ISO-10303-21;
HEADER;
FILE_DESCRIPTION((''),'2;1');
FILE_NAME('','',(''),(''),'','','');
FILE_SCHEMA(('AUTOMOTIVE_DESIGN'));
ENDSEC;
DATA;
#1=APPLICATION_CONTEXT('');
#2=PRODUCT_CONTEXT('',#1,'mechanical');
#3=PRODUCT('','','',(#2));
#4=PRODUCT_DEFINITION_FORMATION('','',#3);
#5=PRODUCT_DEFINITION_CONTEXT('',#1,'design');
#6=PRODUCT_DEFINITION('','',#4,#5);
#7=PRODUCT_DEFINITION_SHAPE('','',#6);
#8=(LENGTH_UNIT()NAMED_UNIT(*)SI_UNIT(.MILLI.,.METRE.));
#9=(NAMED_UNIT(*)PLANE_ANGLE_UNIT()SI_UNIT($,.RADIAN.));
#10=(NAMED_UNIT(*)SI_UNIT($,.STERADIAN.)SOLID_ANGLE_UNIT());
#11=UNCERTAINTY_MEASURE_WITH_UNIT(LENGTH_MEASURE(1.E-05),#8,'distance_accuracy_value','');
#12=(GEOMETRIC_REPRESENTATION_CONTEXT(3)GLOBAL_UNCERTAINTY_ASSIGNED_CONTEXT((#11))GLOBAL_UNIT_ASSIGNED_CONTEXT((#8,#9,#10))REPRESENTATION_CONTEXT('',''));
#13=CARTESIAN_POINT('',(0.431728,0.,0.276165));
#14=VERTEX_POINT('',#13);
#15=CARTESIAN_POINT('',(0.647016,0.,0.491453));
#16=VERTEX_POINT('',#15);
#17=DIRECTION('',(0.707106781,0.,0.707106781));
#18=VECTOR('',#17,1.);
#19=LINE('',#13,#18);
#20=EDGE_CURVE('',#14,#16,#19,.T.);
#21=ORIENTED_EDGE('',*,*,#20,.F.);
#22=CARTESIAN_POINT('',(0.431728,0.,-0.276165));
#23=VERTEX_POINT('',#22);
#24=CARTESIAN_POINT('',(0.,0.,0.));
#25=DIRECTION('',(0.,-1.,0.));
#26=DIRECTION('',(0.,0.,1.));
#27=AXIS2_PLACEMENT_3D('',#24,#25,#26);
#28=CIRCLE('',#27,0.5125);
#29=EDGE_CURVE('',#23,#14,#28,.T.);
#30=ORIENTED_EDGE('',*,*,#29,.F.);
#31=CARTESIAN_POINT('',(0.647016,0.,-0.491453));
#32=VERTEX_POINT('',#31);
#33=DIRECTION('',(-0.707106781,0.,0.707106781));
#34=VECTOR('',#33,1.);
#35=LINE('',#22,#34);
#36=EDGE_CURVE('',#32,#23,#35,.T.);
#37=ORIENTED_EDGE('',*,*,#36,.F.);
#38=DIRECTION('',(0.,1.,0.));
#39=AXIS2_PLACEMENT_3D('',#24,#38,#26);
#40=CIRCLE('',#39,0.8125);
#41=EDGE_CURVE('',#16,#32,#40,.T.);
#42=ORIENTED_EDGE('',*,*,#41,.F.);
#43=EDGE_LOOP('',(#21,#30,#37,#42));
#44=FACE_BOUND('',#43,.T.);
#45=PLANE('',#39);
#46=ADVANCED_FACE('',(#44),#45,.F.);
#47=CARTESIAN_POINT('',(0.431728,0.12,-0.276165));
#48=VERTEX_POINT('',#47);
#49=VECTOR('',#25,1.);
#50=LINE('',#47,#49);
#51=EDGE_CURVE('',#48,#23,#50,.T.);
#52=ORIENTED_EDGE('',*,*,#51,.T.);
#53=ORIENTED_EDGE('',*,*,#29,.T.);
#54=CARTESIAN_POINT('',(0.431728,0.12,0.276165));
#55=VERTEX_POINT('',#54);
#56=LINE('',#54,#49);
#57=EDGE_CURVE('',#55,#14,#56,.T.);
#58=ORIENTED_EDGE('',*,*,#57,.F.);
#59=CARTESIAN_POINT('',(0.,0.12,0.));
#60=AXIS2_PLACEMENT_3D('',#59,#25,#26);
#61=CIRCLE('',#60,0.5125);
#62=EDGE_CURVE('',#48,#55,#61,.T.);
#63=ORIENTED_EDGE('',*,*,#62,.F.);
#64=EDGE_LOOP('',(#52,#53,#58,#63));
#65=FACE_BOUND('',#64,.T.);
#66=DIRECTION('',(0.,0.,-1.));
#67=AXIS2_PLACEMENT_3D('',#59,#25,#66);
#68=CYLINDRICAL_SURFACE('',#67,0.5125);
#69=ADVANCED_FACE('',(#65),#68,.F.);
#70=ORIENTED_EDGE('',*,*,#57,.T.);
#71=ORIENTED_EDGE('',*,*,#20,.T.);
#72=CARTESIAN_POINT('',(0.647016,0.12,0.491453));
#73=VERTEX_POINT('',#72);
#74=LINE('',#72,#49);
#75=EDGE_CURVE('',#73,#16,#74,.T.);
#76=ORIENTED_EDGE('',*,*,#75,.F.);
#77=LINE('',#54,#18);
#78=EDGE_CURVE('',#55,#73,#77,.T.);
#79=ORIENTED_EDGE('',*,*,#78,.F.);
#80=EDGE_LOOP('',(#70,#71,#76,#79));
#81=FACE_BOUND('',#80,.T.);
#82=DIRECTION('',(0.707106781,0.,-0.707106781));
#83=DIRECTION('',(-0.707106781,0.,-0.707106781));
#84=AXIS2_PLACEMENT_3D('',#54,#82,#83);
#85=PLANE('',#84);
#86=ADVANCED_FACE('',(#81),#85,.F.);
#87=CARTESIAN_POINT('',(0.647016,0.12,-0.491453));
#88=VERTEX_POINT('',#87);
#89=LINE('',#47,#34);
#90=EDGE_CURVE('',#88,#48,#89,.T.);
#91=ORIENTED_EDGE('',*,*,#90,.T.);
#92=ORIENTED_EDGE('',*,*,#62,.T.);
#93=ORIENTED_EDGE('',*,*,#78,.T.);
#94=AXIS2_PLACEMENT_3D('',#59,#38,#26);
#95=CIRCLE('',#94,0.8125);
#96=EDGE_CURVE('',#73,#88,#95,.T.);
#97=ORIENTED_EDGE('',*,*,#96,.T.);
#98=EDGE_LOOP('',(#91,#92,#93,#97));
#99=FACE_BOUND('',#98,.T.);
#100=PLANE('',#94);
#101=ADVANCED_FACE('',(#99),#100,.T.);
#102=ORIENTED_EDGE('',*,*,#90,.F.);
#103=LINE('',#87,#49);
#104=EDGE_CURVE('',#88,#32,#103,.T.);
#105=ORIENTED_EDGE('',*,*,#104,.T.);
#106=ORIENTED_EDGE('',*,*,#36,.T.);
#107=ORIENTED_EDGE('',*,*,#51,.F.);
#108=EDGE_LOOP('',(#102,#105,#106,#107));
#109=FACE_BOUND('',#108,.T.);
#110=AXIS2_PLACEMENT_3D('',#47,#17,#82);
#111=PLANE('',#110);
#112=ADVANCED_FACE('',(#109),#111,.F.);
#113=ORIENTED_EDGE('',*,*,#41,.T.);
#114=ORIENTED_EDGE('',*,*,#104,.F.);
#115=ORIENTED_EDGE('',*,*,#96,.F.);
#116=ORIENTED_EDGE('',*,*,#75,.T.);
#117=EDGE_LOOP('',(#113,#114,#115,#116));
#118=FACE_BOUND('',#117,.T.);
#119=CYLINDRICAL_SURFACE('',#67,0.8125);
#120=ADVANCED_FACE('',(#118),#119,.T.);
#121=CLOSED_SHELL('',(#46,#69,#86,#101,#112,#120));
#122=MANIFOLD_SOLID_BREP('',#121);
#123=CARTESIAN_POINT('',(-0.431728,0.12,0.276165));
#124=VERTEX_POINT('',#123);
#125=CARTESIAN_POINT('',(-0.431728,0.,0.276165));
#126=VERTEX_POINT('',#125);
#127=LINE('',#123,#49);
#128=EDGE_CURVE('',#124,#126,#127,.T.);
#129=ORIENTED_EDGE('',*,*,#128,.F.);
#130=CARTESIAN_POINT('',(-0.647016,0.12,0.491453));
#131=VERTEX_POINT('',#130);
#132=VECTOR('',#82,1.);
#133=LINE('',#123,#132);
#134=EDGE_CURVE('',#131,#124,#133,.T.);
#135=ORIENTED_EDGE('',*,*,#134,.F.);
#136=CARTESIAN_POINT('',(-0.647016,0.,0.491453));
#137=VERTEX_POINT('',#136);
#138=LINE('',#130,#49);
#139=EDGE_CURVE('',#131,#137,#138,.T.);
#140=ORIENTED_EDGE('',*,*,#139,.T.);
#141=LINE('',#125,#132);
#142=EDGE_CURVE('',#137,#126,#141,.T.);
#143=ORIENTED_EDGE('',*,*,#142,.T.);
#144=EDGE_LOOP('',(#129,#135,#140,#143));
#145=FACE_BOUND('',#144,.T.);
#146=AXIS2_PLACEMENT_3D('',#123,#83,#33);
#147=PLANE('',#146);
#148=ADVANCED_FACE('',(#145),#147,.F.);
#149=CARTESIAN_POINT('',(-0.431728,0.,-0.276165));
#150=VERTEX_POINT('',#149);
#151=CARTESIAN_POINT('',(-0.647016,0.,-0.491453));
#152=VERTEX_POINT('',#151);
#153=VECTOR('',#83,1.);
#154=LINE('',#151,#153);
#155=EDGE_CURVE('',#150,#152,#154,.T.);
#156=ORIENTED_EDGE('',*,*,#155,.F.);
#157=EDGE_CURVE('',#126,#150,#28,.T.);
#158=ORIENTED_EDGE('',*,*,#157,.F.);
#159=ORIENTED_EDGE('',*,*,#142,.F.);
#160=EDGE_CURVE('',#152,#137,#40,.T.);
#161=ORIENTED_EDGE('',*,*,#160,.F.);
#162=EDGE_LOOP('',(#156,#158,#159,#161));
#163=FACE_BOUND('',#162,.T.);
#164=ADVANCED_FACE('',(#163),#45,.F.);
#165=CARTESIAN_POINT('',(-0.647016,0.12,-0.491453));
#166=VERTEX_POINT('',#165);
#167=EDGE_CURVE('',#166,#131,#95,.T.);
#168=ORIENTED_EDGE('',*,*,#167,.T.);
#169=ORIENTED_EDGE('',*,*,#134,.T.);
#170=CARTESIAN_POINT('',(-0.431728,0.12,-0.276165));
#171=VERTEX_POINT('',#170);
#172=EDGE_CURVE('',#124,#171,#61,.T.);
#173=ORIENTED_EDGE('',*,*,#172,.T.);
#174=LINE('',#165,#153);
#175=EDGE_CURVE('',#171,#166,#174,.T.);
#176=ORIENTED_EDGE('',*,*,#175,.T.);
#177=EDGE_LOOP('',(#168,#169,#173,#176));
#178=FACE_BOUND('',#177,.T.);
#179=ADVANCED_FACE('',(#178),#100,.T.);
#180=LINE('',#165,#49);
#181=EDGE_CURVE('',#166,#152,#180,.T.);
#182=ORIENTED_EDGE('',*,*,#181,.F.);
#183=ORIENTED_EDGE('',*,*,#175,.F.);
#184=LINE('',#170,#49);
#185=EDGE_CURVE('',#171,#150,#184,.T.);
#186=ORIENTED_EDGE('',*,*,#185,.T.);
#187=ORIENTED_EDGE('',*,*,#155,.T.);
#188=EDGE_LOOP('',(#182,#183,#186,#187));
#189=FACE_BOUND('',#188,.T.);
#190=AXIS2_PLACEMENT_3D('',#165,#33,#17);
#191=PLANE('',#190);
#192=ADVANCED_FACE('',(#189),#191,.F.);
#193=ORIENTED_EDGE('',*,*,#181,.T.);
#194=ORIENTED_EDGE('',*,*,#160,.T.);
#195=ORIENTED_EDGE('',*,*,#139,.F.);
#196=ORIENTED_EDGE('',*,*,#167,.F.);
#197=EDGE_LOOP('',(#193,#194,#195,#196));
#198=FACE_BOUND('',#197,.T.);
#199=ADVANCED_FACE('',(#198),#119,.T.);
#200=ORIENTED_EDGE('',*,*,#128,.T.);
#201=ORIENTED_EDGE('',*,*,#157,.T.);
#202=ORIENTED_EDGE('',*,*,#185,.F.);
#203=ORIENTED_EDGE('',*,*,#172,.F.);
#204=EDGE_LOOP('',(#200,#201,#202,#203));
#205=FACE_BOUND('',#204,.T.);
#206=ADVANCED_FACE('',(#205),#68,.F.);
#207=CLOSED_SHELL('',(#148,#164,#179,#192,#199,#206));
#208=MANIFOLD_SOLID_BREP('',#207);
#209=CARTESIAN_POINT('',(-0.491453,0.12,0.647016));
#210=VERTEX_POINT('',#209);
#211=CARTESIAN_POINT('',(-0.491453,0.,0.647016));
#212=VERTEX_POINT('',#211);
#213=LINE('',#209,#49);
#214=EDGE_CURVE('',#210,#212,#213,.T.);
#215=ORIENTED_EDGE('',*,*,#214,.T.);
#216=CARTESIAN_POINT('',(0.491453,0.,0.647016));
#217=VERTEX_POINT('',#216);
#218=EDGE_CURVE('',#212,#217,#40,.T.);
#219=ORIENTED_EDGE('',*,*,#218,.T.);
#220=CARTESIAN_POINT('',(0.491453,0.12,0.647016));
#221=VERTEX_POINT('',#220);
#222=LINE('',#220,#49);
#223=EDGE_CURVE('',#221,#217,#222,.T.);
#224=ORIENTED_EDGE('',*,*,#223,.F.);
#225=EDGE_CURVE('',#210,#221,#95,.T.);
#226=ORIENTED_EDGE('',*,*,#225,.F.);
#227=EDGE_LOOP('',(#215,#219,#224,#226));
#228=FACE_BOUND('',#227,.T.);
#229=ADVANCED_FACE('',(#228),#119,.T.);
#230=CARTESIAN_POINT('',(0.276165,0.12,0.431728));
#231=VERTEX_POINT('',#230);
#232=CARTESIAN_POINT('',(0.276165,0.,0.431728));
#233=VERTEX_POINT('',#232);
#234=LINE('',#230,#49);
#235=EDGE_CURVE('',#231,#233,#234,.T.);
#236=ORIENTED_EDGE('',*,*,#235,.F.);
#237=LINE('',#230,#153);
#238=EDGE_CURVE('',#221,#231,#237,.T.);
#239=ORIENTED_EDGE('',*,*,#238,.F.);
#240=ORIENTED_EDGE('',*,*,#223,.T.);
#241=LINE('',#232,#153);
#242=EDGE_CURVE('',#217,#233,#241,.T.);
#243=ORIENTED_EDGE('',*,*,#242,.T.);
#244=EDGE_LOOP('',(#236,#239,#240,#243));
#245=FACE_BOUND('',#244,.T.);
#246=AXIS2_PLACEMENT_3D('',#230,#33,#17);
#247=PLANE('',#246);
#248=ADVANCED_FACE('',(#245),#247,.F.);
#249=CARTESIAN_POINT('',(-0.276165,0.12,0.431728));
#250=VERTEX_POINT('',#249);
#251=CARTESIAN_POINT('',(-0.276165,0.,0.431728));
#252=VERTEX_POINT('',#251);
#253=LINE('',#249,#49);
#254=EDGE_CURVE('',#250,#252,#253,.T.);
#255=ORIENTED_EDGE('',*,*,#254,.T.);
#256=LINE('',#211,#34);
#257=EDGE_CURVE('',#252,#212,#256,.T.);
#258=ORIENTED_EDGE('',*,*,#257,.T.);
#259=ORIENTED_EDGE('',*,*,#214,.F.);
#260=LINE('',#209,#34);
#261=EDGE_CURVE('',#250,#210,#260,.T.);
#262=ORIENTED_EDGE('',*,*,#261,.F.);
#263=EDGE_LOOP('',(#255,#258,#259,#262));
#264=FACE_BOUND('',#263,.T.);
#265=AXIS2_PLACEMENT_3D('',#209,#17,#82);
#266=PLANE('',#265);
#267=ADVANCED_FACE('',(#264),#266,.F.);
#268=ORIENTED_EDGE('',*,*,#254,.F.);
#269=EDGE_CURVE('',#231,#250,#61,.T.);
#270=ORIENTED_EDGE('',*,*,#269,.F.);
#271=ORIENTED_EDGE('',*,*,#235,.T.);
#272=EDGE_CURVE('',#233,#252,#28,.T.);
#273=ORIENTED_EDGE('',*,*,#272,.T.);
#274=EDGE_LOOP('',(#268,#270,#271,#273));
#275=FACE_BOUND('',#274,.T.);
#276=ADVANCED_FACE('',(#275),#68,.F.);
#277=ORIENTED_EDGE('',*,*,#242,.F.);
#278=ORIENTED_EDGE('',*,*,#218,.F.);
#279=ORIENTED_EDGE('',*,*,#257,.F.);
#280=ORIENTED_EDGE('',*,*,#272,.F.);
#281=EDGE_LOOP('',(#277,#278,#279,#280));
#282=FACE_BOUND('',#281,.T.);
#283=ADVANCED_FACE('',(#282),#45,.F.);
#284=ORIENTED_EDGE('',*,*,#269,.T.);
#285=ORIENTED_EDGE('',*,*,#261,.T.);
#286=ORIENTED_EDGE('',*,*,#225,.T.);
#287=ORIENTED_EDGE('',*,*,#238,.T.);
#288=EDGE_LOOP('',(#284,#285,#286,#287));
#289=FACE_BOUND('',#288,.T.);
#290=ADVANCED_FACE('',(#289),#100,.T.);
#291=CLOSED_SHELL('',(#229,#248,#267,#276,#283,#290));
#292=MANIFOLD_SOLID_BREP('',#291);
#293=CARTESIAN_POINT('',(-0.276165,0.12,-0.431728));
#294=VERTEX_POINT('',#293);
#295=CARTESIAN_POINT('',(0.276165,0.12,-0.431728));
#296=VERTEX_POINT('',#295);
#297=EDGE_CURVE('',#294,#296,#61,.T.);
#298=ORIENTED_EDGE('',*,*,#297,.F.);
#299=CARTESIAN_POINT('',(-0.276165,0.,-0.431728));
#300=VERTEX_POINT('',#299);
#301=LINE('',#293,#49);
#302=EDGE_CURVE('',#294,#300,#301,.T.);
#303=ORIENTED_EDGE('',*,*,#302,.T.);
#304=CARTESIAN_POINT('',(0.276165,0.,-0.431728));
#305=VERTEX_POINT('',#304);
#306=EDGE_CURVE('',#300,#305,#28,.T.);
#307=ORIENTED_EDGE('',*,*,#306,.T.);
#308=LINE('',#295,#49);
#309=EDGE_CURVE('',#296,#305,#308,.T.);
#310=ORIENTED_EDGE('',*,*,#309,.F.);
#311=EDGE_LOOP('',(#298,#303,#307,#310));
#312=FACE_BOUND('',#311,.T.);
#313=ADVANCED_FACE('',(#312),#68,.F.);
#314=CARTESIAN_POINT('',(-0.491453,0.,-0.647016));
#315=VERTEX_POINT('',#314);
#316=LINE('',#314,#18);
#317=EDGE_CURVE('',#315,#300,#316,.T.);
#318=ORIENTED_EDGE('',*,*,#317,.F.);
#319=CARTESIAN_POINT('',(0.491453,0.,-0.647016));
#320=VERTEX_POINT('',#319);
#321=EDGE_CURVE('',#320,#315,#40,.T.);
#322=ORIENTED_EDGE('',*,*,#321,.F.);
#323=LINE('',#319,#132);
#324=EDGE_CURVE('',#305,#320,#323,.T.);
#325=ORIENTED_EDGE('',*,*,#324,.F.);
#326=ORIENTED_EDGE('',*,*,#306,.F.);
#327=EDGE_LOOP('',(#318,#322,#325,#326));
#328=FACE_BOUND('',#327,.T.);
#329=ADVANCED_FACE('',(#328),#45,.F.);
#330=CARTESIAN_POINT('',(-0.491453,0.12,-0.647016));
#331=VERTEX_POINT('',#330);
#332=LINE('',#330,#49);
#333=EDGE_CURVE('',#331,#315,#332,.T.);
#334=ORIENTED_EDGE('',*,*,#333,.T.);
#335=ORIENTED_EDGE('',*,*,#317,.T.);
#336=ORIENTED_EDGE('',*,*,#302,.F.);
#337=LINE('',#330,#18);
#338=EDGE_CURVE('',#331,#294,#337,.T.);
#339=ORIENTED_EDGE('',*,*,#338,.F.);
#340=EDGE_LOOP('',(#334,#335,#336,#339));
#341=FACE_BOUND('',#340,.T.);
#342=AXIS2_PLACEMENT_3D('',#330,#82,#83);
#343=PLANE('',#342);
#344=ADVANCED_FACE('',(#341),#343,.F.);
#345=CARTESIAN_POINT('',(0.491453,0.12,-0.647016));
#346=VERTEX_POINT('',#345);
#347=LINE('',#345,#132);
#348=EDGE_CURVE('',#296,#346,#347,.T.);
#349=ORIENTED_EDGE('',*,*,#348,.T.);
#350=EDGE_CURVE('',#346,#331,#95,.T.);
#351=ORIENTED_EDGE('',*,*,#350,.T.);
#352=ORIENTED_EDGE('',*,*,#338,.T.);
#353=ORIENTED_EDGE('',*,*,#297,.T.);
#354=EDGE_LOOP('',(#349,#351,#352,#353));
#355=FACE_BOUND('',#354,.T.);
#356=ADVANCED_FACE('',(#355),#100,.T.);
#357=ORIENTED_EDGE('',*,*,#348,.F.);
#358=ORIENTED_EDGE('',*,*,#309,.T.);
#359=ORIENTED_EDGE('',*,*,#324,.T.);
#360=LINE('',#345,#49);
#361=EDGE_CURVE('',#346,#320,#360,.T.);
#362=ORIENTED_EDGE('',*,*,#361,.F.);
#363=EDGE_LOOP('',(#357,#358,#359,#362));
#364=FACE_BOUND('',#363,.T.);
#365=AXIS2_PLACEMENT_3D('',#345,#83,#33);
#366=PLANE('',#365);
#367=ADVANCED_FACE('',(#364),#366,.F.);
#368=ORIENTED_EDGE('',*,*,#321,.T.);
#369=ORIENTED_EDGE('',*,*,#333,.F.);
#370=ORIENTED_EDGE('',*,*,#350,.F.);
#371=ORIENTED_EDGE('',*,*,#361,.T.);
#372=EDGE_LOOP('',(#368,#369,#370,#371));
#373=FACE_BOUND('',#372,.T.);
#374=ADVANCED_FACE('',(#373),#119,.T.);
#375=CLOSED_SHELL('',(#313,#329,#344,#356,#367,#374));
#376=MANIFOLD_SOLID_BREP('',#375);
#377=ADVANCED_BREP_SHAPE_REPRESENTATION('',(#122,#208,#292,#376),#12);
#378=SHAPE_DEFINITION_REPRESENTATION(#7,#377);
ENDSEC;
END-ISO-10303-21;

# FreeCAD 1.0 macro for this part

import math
import FreeCAD as App
import Part
import Sketcher
Q = App.Units.Quantity

doc = App.newDocument("Part")
body = doc.addObject("PartDesign::Body", "Body")

# Sketch on XZ plane
sketch1 = doc.addObject("Sketcher::SketchObject", "Sketch")
body.addObject(sketch1)
sketch1.AttachmentSupport = (doc.XZ_Plane, [""])
sketch1.MapMode = "FlatFace"
sketch1.addGeometry([
    Part.LineSegment(App.Vector(-0.28, 0.43, 0), App.Vector(-0.49, 0.65, 0)),
    Part.ArcOfCircle(Part.Circle(App.Vector(0, 0, 0), App.Vector(0, 0, 1), 0.81), math.radians(53), math.radians(127)),
    Part.LineSegment(App.Vector(0.49, 0.65, 0), App.Vector(0.28, 0.43, 0)),
    Part.ArcOfCircle(Part.Circle(App.Vector(0, 0, 0), App.Vector(0, 0, 1), 0.51), math.radians(57), math.radians(123)),
], False)
sketch1.addConstraint([
    Sketcher.Constraint("Coincident", 0, 2, 1, 2),
    Sketcher.Constraint("Coincident", 1, 1, 2, 1),
    Sketcher.Constraint("Coincident", 2, 2, 3, 1),
    Sketcher.Constraint("Coincident", 3, 2, 0, 1),
    Sketcher.Constraint("Coincident", 1, 3, -1, 1),
    Sketcher.Constraint("Coincident", 3, 3, -1, 1),
    Sketcher.Constraint("Perpendicular", 0, 2),
    Sketcher.Constraint("Horizontal", 0, 2, 1, 1),
    Sketcher.Constraint("Horizontal", 2, 2, 3, 2),
    Sketcher.Constraint("Radius", 1, Q("0.8125 mm")),
    Sketcher.Constraint("Radius", 3, Q("0.5125 mm")),
    Sketcher.Constraint("DistanceY", -1, 1, 2, 2, Q("0.431728 mm")),
])
pad1 = doc.addObject("PartDesign::Pad", "Pad")
body.addObject(pad1)
pad1.Profile = sketch1
pad1.Length = 0.12
pad1.Reversed = True
body2 = doc.addObject("PartDesign::Body", "Body001")

# Sketch on XZ plane
sketch2 = doc.addObject("Sketcher::SketchObject", "Sketch001")
body2.addObject(sketch2)
sketch2.AttachmentSupport = (doc.getObject("XZ_Plane001"), [""])
sketch2.MapMode = "FlatFace"
sketch2.addGeometry([
    Part.LineSegment(App.Vector(0.28, -0.43, 0), App.Vector(0.49, -0.65, 0)),
    Part.ArcOfCircle(Part.Circle(App.Vector(0, 0, 0), App.Vector(0, 0, 1), 0.81), math.radians(-127), math.radians(-53)),
    Part.LineSegment(App.Vector(-0.49, -0.65, 0), App.Vector(-0.28, -0.43, 0)),
    Part.ArcOfCircle(Part.Circle(App.Vector(0, 0, 0), App.Vector(0, 0, 1), 0.51), math.radians(-123), math.radians(-57)),
], False)
sketch2.addConstraint([
    Sketcher.Constraint("Coincident", 0, 2, 1, 2),
    Sketcher.Constraint("Coincident", 1, 1, 2, 1),
    Sketcher.Constraint("Coincident", 2, 2, 3, 1),
    Sketcher.Constraint("Coincident", 3, 2, 0, 1),
    Sketcher.Constraint("Coincident", 1, 3, -1, 1),
    Sketcher.Constraint("Coincident", 3, 3, -1, 1),
    Sketcher.Constraint("Perpendicular", 0, 2),
    Sketcher.Constraint("Horizontal", 0, 2, 1, 1),
    Sketcher.Constraint("Horizontal", 2, 2, 3, 2),
    Sketcher.Constraint("Radius", 1, Q("0.8125 mm")),
    Sketcher.Constraint("Radius", 3, Q("0.5125 mm")),
    Sketcher.Constraint("DistanceY", 2, 2, -1, 1, Q("0.431728 mm")),
])
pad2 = doc.addObject("PartDesign::Pad", "Pad001")
body2.addObject(pad2)
pad2.Profile = sketch2
pad2.Length = 0.12
pad2.Reversed = True
body3 = doc.addObject("PartDesign::Body", "Body002")

# Sketch on XZ plane
sketch3 = doc.addObject("Sketcher::SketchObject", "Sketch002")
body3.addObject(sketch3)
sketch3.AttachmentSupport = (doc.getObject("XZ_Plane002"), [""])
sketch3.MapMode = "FlatFace"
sketch3.addGeometry([
    Part.LineSegment(App.Vector(-0.43, -0.28, 0), App.Vector(-0.65, -0.49, 0)),
    Part.ArcOfCircle(Part.Circle(App.Vector(0, 0, 0), App.Vector(0, 0, 1), 0.81), math.radians(143), math.radians(217)),
    Part.LineSegment(App.Vector(-0.65, 0.49, 0), App.Vector(-0.43, 0.28, 0)),
    Part.ArcOfCircle(Part.Circle(App.Vector(0, 0, 0), App.Vector(0, 0, 1), 0.51), math.radians(147), math.radians(213)),
], False)
sketch3.addConstraint([
    Sketcher.Constraint("Coincident", 0, 2, 1, 2),
    Sketcher.Constraint("Coincident", 1, 1, 2, 1),
    Sketcher.Constraint("Coincident", 2, 2, 3, 1),
    Sketcher.Constraint("Coincident", 3, 2, 0, 1),
    Sketcher.Constraint("Coincident", 1, 3, -1, 1),
    Sketcher.Constraint("Coincident", 3, 3, -1, 1),
    Sketcher.Constraint("Perpendicular", 0, 2),
    Sketcher.Constraint("Vertical", 0, 2, 1, 1),
    Sketcher.Constraint("Vertical", 2, 2, 3, 2),
    Sketcher.Constraint("Radius", 1, Q("0.8125 mm")),
    Sketcher.Constraint("Radius", 3, Q("0.5125 mm")),
    Sketcher.Constraint("DistanceX", 2, 2, -1, 1, Q("0.431728 mm")),
])
pad3 = doc.addObject("PartDesign::Pad", "Pad002")
body3.addObject(pad3)
pad3.Profile = sketch3
pad3.Length = 0.12
pad3.Reversed = True
body4 = doc.addObject("PartDesign::Body", "Body003")

# Sketch on XZ plane
sketch4 = doc.addObject("Sketcher::SketchObject", "Sketch003")
body4.addObject(sketch4)
sketch4.AttachmentSupport = (doc.getObject("XZ_Plane003"), [""])
sketch4.MapMode = "FlatFace"
sketch4.addGeometry([
    Part.LineSegment(App.Vector(0.65, -0.49, 0), App.Vector(0.43, -0.28, 0)),
    Part.ArcOfCircle(Part.Circle(App.Vector(0, 0, 0), App.Vector(0, 0, 1), 0.51), math.radians(-33), math.radians(33)),
    Part.LineSegment(App.Vector(0.43, 0.28, 0), App.Vector(0.65, 0.49, 0)),
    Part.ArcOfCircle(Part.Circle(App.Vector(0, 0, 0), App.Vector(0, 0, 1), 0.81), math.radians(-37), math.radians(37)),
], False)
sketch4.addConstraint([
    Sketcher.Constraint("Coincident", 0, 2, 1, 1),
    Sketcher.Constraint("Coincident", 1, 2, 2, 1),
    Sketcher.Constraint("Coincident", 2, 2, 3, 2),
    Sketcher.Constraint("Coincident", 3, 1, 0, 1),
    Sketcher.Constraint("Coincident", 1, 3, -1, 1),
    Sketcher.Constraint("Coincident", 3, 3, -1, 1),
    Sketcher.Constraint("Perpendicular", 0, 2),
    Sketcher.Constraint("Vertical", 0, 2, 1, 2),
    Sketcher.Constraint("Vertical", 2, 2, 3, 1),
    Sketcher.Constraint("Radius", 1, Q("0.5125 mm")),
    Sketcher.Constraint("Radius", 3, Q("0.8125 mm")),
    Sketcher.Constraint("DistanceX", -1, 1, 0, 2, Q("0.431728 mm")),
])
pad4 = doc.addObject("PartDesign::Pad", "Pad003")
body4.addObject(pad4)
pad4.Profile = sketch4
pad4.Length = 0.12
pad4.Reversed = True

doc.recompute()
